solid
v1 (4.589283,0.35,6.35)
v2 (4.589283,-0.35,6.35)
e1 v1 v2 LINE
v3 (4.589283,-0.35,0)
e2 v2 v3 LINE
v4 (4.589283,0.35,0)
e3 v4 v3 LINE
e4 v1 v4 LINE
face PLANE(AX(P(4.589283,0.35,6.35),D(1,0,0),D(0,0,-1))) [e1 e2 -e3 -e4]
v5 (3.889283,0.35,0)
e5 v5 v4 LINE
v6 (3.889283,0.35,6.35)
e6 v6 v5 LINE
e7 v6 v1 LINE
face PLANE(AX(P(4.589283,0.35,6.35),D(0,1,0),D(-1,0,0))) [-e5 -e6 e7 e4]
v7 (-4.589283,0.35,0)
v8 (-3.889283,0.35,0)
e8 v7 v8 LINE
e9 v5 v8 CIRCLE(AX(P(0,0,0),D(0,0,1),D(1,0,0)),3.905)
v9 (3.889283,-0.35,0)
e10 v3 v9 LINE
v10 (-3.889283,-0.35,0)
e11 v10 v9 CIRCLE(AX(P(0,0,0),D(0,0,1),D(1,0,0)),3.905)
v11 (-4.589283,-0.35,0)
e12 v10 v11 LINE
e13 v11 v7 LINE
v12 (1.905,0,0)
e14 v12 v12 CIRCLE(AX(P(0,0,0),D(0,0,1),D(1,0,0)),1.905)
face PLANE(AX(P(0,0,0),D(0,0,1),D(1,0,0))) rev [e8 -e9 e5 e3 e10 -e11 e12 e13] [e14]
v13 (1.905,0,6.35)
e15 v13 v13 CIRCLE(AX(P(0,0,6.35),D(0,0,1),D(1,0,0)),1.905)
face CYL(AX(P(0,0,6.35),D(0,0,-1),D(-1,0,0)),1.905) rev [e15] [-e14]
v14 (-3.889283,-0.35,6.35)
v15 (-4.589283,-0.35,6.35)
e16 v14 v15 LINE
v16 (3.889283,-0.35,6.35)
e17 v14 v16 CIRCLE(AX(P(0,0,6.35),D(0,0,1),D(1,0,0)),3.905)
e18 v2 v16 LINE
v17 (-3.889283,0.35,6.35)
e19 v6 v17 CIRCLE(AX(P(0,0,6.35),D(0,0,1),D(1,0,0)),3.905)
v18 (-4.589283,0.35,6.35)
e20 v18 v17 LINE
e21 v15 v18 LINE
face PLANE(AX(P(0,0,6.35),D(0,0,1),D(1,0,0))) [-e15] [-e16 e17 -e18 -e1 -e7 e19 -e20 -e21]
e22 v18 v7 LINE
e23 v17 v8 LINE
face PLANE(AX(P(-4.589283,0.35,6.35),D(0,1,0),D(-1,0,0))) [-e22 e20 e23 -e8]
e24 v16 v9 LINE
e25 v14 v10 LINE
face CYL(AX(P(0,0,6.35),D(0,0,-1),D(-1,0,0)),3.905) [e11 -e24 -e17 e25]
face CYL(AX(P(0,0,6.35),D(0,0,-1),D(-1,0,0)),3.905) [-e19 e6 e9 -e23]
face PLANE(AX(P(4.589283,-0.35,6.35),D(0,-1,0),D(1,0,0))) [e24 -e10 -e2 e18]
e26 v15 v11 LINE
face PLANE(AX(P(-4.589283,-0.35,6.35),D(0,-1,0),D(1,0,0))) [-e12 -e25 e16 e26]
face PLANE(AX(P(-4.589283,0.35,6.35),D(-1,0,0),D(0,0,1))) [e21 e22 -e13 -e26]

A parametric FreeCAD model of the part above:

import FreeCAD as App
import Part
import Sketcher
Q = App.Units.Quantity


def add_polygon(sketch, points):
    """Adds a closed chain of lines whose ends are joined by coincident constraints."""
    first, n = sketch.GeometryCount, len(points)
    for a, b in zip(points, points[1:] + points[:1]):
        sketch.addGeometry(Part.LineSegment(App.Vector(*a, 0), App.Vector(*b, 0)), False)
    for i in range(n):
        sketch.addConstraint(Sketcher.Constraint("Coincident", first + i, 2, first + (i + 1) % n, 1))

doc = App.newDocument("Part")
body = doc.addObject("PartDesign::Body", "Body")

# Sketch on XY plane
sketch1 = body.newObject("Sketcher::SketchObject", "Sketch")
sketch1.AttachmentSupport = (doc.getObject("XY_Plane"), [""])
sketch1.MapMode = "FlatFace"
sketch1.addGeometry(Part.Circle(App.Vector(0, 0, 0), App.Vector(0, 0, 1), 3.905), False)
sketch1.addGeometry(Part.Circle(App.Vector(0, 0, 0), App.Vector(0, 0, 1), 1.905), False)
sketch1.addConstraint(Sketcher.Constraint("Coincident", 0, 3, -1, 1))
sketch1.addConstraint(Sketcher.Constraint("Coincident", 1, 3, -1, 1))
sketch1.addConstraint(Sketcher.Constraint("Diameter", 1, Q("0.15 in")))
sketch1.addConstraint(Sketcher.Constraint("Diameter", 0, 7.81))
pad1 = body.newObject("PartDesign::Pad", "Pad")
pad1.Profile = sketch1
pad1.Length = Q("0.25 in")

# Sketch on XY plane
sketch2 = body.newObject("Sketcher::SketchObject", "Sketch001")
sketch2.AttachmentSupport = (doc.getObject("XY_Plane"), [""])
sketch2.MapMode = "FlatFace"
add_polygon(sketch2, [(-3.889283, 0.35), (-3.889283, -0.35), (-4.589283, -0.35), (-4.589283, 0.35)])  # lines 0-3
add_polygon(sketch2, [(4.589283, 0.35), (4.589283, -0.35), (3.889283, -0.35), (3.889283, 0.35)])  # lines 4-7
sketch2.addConstraint(Sketcher.Constraint("Vertical", 0))
sketch2.addConstraint(Sketcher.Constraint("Horizontal", 1))
sketch2.addConstraint(Sketcher.Constraint("Vertical", 2))
sketch2.addConstraint(Sketcher.Constraint("Horizontal", 3))
sketch2.addConstraint(Sketcher.Constraint("Vertical", 4))
sketch2.addConstraint(Sketcher.Constraint("Horizontal", 5))
sketch2.addConstraint(Sketcher.Constraint("Vertical", 6))
sketch2.addConstraint(Sketcher.Constraint("Horizontal", 7))
sketch2.addConstraint(Sketcher.Constraint("Symmetric", 2, 2, 4, 2, -1, 1))
sketch2.addConstraint(Sketcher.Constraint("Symmetric", 0, 2, 6, 2, -1, 1))
sketch2.addConstraint(Sketcher.Constraint("Horizontal", 1, 2, 4, 2))
sketch2.addConstraint(Sketcher.Constraint("Equal", 7, 0))
sketch2.addConstraint(Sketcher.Constraint("DistanceX", 1, 2, 1, 1, 0.7))
sketch2.addConstraint(Sketcher.Constraint("DistanceX", 0, 2, -1, 1, 3.889283))
pad2 = body.newObject("PartDesign::Pad", "Pad001")
pad2.Profile = sketch2
pad2.Length = Q("0.25 in")

doc.recompute()
